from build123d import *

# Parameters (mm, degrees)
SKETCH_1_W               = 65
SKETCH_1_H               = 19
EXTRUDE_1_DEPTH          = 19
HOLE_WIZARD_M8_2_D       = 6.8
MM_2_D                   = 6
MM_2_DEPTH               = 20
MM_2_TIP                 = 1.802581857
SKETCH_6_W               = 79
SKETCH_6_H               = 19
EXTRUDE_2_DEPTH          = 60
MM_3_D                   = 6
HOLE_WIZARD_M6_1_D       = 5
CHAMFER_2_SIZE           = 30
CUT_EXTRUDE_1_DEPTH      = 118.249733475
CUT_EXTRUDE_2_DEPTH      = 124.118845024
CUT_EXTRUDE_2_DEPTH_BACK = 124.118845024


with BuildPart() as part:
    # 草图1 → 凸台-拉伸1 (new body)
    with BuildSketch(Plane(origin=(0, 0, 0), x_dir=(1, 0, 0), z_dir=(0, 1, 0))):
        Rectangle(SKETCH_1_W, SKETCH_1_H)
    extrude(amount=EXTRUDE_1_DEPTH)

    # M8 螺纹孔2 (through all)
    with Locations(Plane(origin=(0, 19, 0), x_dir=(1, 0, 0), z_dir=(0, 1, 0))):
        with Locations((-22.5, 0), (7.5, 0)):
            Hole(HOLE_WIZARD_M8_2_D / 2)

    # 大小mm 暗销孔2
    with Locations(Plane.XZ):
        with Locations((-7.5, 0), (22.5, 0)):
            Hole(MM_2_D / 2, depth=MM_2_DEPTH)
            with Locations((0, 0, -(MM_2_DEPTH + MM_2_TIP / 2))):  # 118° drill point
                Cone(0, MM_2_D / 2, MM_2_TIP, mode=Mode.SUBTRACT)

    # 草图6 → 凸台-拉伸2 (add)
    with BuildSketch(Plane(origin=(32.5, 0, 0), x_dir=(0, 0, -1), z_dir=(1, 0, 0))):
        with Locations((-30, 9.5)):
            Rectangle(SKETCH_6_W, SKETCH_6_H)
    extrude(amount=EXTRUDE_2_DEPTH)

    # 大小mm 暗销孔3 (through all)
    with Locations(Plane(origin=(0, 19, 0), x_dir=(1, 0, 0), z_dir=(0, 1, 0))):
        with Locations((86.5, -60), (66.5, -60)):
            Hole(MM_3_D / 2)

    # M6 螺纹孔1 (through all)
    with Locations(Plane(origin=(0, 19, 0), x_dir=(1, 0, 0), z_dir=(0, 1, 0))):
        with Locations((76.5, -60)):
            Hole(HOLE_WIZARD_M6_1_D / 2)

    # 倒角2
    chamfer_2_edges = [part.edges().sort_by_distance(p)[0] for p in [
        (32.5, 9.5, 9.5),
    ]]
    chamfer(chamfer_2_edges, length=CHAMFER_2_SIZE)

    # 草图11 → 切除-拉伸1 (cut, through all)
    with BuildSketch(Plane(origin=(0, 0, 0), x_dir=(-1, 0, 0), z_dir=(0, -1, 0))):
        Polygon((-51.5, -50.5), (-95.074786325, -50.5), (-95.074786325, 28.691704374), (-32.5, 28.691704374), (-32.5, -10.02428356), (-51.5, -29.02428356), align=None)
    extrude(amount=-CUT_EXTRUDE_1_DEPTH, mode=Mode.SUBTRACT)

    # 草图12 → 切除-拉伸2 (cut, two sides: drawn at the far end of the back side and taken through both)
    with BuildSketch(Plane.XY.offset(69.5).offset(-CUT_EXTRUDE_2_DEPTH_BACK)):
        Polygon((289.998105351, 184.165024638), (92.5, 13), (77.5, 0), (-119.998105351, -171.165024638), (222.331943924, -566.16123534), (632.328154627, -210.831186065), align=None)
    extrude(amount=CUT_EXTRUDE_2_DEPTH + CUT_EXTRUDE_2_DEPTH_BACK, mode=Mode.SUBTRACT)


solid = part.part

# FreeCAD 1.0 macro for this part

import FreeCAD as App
import Part
import Sketcher
Q = App.Units.Quantity


def edges_at(feature, points):
    """Names of the edges that pass closest to the given points."""
    edges = feature.Shape.Edges
    near = lambda p: min(range(len(edges)), key=lambda i: edges[i].distToShape(Part.Vertex(*p))[0])
    return sorted({f"Edge{near(p) + 1}" for p in points})


def add_polygon(sketch, points):
    """Adds a closed chain of lines whose ends are joined by coincident constraints."""
    first, n = sketch.GeometryCount, len(points)
    for a, b in zip(points, points[1:] + points[:1]):
        sketch.addGeometry(Part.LineSegment(App.Vector(*a, 0), App.Vector(*b, 0)), False)
    for i in range(n):
        sketch.addConstraint(Sketcher.Constraint("Coincident", first + i, 2, first + (i + 1) % n, 1))

doc = App.newDocument("Part")
params = doc.addObject("Spreadsheet::Sheet", "Params")
for row, (alias, value) in enumerate([
    ("sketch1_width", "65 mm"),
    ("sketch1_height", "19 mm"),
    ("pad1_length", "19 mm"),
    ("sketch2_diameter", "6.8 mm"),
    ("hole_diameter", "6.8 mm"),
    ("sketch3_diameter", "6 mm"),
    ("hole2_diameter", "6 mm"),
    ("hole2_depth", "20 mm"),
    ("sketch4_width", "19 mm"),
    ("sketch4_height", "79 mm"),
    ("pad2_length", "60 mm"),
    ("sketch5_diameter", "6 mm"),
    ("hole3_diameter", "6 mm"),
    ("sketch6_diameter", "5 mm"),
    ("hole4_diameter", "5 mm"),
    ("chamfer_size", "30 mm"),
], start=1):
    params.set(f"A{row}", alias)
    params.set(f"B{row}", "=" + value)
    params.setAlias(f"B{row}", alias)

body = doc.addObject("PartDesign::Body", "Body")

# Sketch on XZ plane
sketch1 = body.newObject("Sketcher::SketchObject", "Sketch")
sketch1.AttachmentSupport = (doc.getObject("XZ_Plane"), [""])
sketch1.MapMode = "FlatFace"
add_polygon(sketch1, [(-32, -10), (-32, 10), (32, 10), (32, -10)])  # lines 0-3
sketch1.addConstraint(Sketcher.Constraint("Vertical", 0))
sketch1.addConstraint(Sketcher.Constraint("Horizontal", 1))
sketch1.addConstraint(Sketcher.Constraint("Vertical", 2))
sketch1.addConstraint(Sketcher.Constraint("Horizontal", 3))
sketch1.addConstraint(Sketcher.Constraint("Symmetric", 0, 2, 2, 2, -1, 1))
sketch1.addConstraint(Sketcher.Constraint("DistanceX", 1, 1, 1, 2, Q("65 mm")))
sketch1.addConstraint(Sketcher.Constraint("DistanceY", 0, 1, 0, 2, Q("19 mm")))
sketch1.setExpression("Constraints[9]", "Params.sketch1_width")
sketch1.setExpression("Constraints[10]", "Params.sketch1_height")
pad1 = body.newObject("PartDesign::Pad", "Pad")
pad1.Profile = sketch1
pad1.setExpression("Length", "Params.pad1_length")
pad1.Reversed = True

# Sketch on XZ plane
sketch2 = body.newObject("Sketcher::SketchObject", "Sketch001")
sketch2.AttachmentSupport = (doc.getObject("XZ_Plane"), [""])
sketch2.MapMode = "FlatFace"
sketch2.AttachmentOffset = App.Placement(App.Vector(0, 0, -19), App.Rotation())
sketch2.addGeometry(Part.Circle(App.Vector(-22.5, 0, 0), App.Vector(0, 0, 1), 3.4), False)
sketch2.addGeometry(Part.Circle(App.Vector(7.5, 0, 0), App.Vector(0, 0, 1), 3.4), False)
sketch2.addConstraint(Sketcher.Constraint("Equal", 0, 1))
sketch2.addConstraint(Sketcher.Constraint("PointOnObject", 0, 3, -1))
sketch2.addConstraint(Sketcher.Constraint("PointOnObject", 1, 3, -1))
sketch2.addConstraint(Sketcher.Constraint("Diameter", 0, Q("6.8 mm")))
sketch2.addConstraint(Sketcher.Constraint("DistanceX", 0, 3, 1, 3, Q("30 mm")))
sketch2.addConstraint(Sketcher.Constraint("DistanceX", 0, 3, -1, 1, Q("22.5 mm")))
sketch2.setExpression("Constraints[3]", "Params.sketch2_diameter")
doc.recompute()
hole = body.newObject("PartDesign::Hole", "Hole")
hole.Profile = sketch2
hole.ThreadType = "None"
hole.setExpression("Diameter", "Params.hole_diameter")
hole.DepthType = "ThroughAll"
hole.Reversed = True

# Sketch on XZ plane
sketch3 = body.newObject("Sketcher::SketchObject", "Sketch002")
sketch3.AttachmentSupport = (doc.getObject("XZ_Plane"), [""])
sketch3.MapMode = "FlatFace"
sketch3.addGeometry(Part.Circle(App.Vector(-7.5, 0, 0), App.Vector(0, 0, 1), 3), False)
sketch3.addGeometry(Part.Circle(App.Vector(22.5, 0, 0), App.Vector(0, 0, 1), 3), False)
sketch3.addConstraint(Sketcher.Constraint("Equal", 0, 1))
sketch3.addConstraint(Sketcher.Constraint("PointOnObject", 0, 3, -1))
sketch3.addConstraint(Sketcher.Constraint("PointOnObject", 1, 3, -1))
sketch3.addConstraint(Sketcher.Constraint("Diameter", 0, Q("6 mm")))
sketch3.addConstraint(Sketcher.Constraint("DistanceX", 0, 3, 1, 3, Q("30 mm")))
sketch3.addConstraint(Sketcher.Constraint("DistanceX", 0, 3, -1, 1, Q("7.5 mm")))
sketch3.setExpression("Constraints[3]", "Params.sketch3_diameter")
doc.recompute()
hole2 = body.newObject("PartDesign::Hole", "Hole001")
hole2.Profile = sketch3
hole2.ThreadType = "None"
hole2.setExpression("Diameter", "Params.hole2_diameter")
hole2.DepthType = "Dimension"
hole2.setExpression("Depth", "Params.hole2_depth")
hole2.DrillPoint = "Angled"
hole2.DrillPointAngle = 118

# Sketch on YZ plane
sketch4 = body.newObject("Sketcher::SketchObject", "Sketch003")
sketch4.AttachmentSupport = (doc.getObject("YZ_Plane"), [""])
sketch4.MapMode = "FlatFace"
sketch4.AttachmentOffset = App.Placement(App.Vector(0, 0, 32.5), App.Rotation())
add_polygon(sketch4, [(19, 70), (0, 70), (0, -10), (19, -10)])  # lines 0-3
sketch4.addConstraint(Sketcher.Constraint("Horizontal", 0))
sketch4.addConstraint(Sketcher.Constraint("Vertical", 1))
sketch4.addConstraint(Sketcher.Constraint("Horizontal", 2))
sketch4.addConstraint(Sketcher.Constraint("Vertical", 3))
sketch4.addConstraint(Sketcher.Constraint("PointOnObject", 0, 2, -2))
sketch4.addConstraint(Sketcher.Constraint("DistanceX", 0, 2, 0, 1, Q("19 mm")))
sketch4.addConstraint(Sketcher.Constraint("DistanceY", 1, 2, 1, 1, Q("79 mm")))
sketch4.addConstraint(Sketcher.Constraint("DistanceY", -1, 1, 0, 2, Q("69.5 mm")))
sketch4.setExpression("Constraints[9]", "Params.sketch4_width")
sketch4.setExpression("Constraints[10]", "Params.sketch4_height")
pad2 = body.newObject("PartDesign::Pad", "Pad001")
pad2.Profile = sketch4
pad2.setExpression("Length", "Params.pad2_length")

# Sketch on XZ plane
sketch5 = body.newObject("Sketcher::SketchObject", "Sketch004")
sketch5.AttachmentSupport = (doc.getObject("XZ_Plane"), [""])
sketch5.MapMode = "FlatFace"
sketch5.AttachmentOffset = App.Placement(App.Vector(0, 0, -19), App.Rotation())
sketch5.addGeometry(Part.Circle(App.Vector(86.5, 60, 0), App.Vector(0, 0, 1), 3), False)
sketch5.addGeometry(Part.Circle(App.Vector(66.5, 60, 0), App.Vector(0, 0, 1), 3), False)
sketch5.addConstraint(Sketcher.Constraint("Equal", 0, 1))
sketch5.addConstraint(Sketcher.Constraint("Horizontal", 0, 3, 1, 3))
sketch5.addConstraint(Sketcher.Constraint("Diameter", 0, Q("6 mm")))
sketch5.addConstraint(Sketcher.Constraint("DistanceY", -1, 1, 0, 3, Q("60 mm")))
sketch5.addConstraint(Sketcher.Constraint("DistanceX", 1, 3, 0, 3, Q("20 mm")))
sketch5.addConstraint(Sketcher.Constraint("DistanceX", -1, 1, 0, 3, Q("86.5 mm")))
sketch5.setExpression("Constraints[2]", "Params.sketch5_diameter")
doc.recompute()
hole3 = body.newObject("PartDesign::Hole", "Hole002")
hole3.Profile = sketch5
hole3.ThreadType = "None"
hole3.setExpression("Diameter", "Params.hole3_diameter")
hole3.DepthType = "ThroughAll"
hole3.Reversed = True

# Sketch on XZ plane
sketch6 = body.newObject("Sketcher::SketchObject", "Sketch005")
sketch6.AttachmentSupport = (doc.getObject("XZ_Plane"), [""])
sketch6.MapMode = "FlatFace"
sketch6.AttachmentOffset = App.Placement(App.Vector(0, 0, -19), App.Rotation())
sketch6.addGeometry(Part.Circle(App.Vector(76.5, 60, 0), App.Vector(0, 0, 1), 2.5), False)
sketch6.addConstraint(Sketcher.Constraint("Diameter", 0, Q("5 mm")))
sketch6.addConstraint(Sketcher.Constraint("DistanceY", -1, 1, 0, 3, Q("60 mm")))
sketch6.addConstraint(Sketcher.Constraint("DistanceX", -1, 1, 0, 3, Q("76.5 mm")))
sketch6.setExpression("Constraints[0]", "Params.sketch6_diameter")
doc.recompute()
hole4 = body.newObject("PartDesign::Hole", "Hole003")
hole4.Profile = sketch6
hole4.ThreadType = "None"
hole4.setExpression("Diameter", "Params.hole4_diameter")
hole4.DepthType = "ThroughAll"
hole4.Reversed = True
doc.recompute()

chamfer = body.newObject("PartDesign::Chamfer", "Chamfer")
chamfer.Base = (hole4, edges_at(hole4, [(32.5, 9.5, 9.5)]))
chamfer.setExpression("Size", "Params.chamfer_size")

# Sketch on XZ plane
sketch7 = body.newObject("Sketcher::SketchObject", "Sketch006")
sketch7.AttachmentSupport = (doc.getObject("XZ_Plane"), [""])
sketch7.MapMode = "FlatFace"
add_polygon(sketch7, [(95, 50), (52, 50), (52, 29), (32, 10), (32, -29), (95, -29)])  # lines 0-5
sketch7.addConstraint(Sketcher.Constraint("Horizontal", 0))
sketch7.addConstraint(Sketcher.Constraint("Vertical", 1))
sketch7.addConstraint(Sketcher.Constraint("Vertical", 3))
sketch7.addConstraint(Sketcher.Constraint("Horizontal", 4))
sketch7.addConstraint(Sketcher.Constraint("Vertical", 5))
sketch7.addConstraint(Sketcher.Constraint("Angle", 2, Q("-135 deg")))
sketch7.addConstraint(Sketcher.Constraint("DistanceX", 2, 2, 1, 2, Q("19 mm")))
sketch7.addConstraint(Sketcher.Constraint("DistanceX", -1, 1, 0, 2, Q("51.5 mm")))
sketch7.addConstraint(Sketcher.Constraint("DistanceY", -1, 1, 0, 2, Q("50.5 mm")))
sketch7.addConstraint(Sketcher.Constraint("DistanceX", 0, 2, 0, 1, Q("43.574786 mm")))
sketch7.addConstraint(Sketcher.Constraint("DistanceY", 1, 2, 1, 1, Q("21.475716 mm")))
sketch7.addConstraint(Sketcher.Constraint("DistanceY", 3, 2, 3, 1, Q("38.715988 mm")))
pocket1 = body.newObject("PartDesign::Pocket", "Pocket")
pocket1.Profile = sketch7
pocket1.Type = "ThroughAll"

# Sketch on XY plane
sketch8 = body.newObject("Sketcher::SketchObject", "Sketch007")
sketch8.AttachmentSupport = (doc.getObject("XY_Plane"), [""])
sketch8.MapMode = "FlatFace"
sketch8.AttachmentOffset = App.Placement(App.Vector(0, 0, 69.5), App.Rotation())
add_polygon(sketch8, [(290, 184), (92, 13), (78, 0), (-120, -171), (222, -566), (632, -211)])  # lines 0-5
sketch8.addConstraint(Sketcher.Constraint("PointOnObject", 1, 2, -1))
sketch8.addConstraint(Sketcher.Constraint("Parallel", 0, 1))
sketch8.addConstraint(Sketcher.Constraint("Parallel", 1, 2))
sketch8.addConstraint(Sketcher.Constraint("Perpendicular", 2, 3))
sketch8.addConstraint(Sketcher.Constraint("Perpendicular", 3, 4))
sketch8.addConstraint(Sketcher.Constraint("Perpendicular", 4, 5))
sketch8.addConstraint(Sketcher.Constraint("Equal", 0, 2))
sketch8.addConstraint(Sketcher.Constraint("DistanceY", -1, 1, 0, 2, Q("13 mm")))
sketch8.addConstraint(Sketcher.Constraint("DistanceX", 1, 2, 0, 2, Q("15 mm")))
sketch8.addConstraint(Sketcher.Constraint("DistanceX", -1, 1, 0, 2, Q("92.5 mm")))
sketch8.addConstraint(Sketcher.Constraint("Distance", 4, Q("542.546161 mm")))
sketch8.addConstraint(Sketcher.Constraint("DistanceX", 2, 2, 3, 2, Q("342.330049 mm")))
pocket2 = body.newObject("PartDesign::Pocket", "Pocket001")
pocket2.Profile = sketch8
pocket2.Type = "ThroughAll"
pocket2.Midplane = True

doc.recompute()
